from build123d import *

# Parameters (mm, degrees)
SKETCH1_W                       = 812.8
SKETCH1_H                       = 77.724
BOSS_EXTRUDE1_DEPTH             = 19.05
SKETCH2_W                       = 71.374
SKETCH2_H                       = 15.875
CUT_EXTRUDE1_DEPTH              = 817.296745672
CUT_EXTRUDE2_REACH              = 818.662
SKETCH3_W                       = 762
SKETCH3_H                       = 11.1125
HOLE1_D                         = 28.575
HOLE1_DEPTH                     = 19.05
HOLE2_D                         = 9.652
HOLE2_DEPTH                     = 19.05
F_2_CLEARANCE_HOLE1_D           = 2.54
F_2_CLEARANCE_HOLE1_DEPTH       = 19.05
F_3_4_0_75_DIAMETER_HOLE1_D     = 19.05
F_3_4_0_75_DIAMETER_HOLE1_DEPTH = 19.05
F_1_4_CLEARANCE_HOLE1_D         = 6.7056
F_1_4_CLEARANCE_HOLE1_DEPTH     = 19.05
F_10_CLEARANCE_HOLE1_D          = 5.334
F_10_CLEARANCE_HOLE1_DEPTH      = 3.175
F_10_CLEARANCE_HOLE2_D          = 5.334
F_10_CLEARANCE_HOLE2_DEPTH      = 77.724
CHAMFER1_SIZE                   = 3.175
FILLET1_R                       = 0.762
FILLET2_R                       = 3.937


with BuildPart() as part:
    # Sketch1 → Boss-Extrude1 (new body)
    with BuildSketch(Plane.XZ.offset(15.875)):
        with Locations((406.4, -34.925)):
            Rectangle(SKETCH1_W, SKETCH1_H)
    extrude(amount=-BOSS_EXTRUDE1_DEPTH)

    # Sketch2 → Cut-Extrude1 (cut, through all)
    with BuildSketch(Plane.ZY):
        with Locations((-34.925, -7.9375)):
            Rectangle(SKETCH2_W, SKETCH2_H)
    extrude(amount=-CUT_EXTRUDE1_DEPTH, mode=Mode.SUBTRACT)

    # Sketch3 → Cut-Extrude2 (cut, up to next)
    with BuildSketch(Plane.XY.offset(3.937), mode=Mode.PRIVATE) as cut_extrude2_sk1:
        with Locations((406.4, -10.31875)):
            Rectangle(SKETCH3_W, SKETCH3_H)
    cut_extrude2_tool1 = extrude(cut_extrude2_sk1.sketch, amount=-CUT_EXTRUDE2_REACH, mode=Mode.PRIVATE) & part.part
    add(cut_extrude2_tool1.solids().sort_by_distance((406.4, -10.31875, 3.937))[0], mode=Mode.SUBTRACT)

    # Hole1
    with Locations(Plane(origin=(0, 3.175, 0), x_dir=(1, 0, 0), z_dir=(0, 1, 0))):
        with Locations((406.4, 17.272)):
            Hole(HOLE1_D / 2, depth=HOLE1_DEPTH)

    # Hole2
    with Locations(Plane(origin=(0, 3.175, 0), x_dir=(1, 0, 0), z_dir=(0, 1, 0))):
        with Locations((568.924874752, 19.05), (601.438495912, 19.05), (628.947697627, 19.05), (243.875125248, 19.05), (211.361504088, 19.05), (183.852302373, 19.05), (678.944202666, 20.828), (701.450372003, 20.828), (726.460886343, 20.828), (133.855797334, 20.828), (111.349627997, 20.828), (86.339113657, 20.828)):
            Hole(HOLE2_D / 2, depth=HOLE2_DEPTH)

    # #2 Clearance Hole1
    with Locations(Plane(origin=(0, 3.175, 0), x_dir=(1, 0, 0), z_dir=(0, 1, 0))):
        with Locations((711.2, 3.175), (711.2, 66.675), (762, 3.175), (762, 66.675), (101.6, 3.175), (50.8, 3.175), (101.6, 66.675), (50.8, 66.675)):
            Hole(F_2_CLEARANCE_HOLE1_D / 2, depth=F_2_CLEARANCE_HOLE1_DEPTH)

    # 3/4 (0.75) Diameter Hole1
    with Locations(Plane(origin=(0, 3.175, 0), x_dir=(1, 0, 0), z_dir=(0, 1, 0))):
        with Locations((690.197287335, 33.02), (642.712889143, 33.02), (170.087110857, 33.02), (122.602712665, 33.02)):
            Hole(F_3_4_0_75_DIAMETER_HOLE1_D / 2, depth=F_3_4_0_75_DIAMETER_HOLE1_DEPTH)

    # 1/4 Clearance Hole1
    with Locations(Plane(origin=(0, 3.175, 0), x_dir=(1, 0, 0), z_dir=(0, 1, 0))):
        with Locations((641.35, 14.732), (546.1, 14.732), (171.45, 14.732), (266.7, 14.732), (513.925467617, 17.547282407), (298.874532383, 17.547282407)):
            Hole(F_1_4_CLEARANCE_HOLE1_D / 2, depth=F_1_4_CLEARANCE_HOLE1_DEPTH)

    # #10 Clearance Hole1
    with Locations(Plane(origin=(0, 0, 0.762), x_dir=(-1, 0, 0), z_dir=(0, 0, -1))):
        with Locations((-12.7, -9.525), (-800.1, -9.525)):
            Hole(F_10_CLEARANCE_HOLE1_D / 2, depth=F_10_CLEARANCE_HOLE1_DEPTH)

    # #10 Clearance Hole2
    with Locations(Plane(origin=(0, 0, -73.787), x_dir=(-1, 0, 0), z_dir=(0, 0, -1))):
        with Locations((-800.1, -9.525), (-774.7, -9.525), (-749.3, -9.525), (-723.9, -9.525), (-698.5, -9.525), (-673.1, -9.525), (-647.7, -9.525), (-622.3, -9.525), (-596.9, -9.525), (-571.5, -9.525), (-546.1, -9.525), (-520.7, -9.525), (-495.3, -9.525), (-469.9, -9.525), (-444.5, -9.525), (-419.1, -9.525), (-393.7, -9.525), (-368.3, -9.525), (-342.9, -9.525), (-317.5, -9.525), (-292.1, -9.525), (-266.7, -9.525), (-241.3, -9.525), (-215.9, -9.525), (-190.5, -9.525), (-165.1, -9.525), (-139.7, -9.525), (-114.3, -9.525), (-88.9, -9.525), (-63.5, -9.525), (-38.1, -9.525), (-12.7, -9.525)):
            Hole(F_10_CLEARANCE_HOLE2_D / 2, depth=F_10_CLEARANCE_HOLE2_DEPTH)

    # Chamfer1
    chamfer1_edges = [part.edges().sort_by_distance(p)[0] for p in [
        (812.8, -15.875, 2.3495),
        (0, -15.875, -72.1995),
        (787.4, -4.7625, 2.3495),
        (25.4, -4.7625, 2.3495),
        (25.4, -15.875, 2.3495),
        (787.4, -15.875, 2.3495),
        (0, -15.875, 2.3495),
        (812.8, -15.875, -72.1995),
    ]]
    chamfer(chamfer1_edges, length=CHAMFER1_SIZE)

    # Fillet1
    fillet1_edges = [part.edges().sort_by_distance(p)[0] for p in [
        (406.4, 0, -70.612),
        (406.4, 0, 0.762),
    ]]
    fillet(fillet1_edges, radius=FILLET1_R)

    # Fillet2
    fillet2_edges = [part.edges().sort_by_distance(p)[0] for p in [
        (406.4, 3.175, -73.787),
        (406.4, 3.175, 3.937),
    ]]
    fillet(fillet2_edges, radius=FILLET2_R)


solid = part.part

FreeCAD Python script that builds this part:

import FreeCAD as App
import Part
import Sketcher
Q = App.Units.Quantity


def edges_at(feature, points):
    """Names of the edges that pass closest to the given points."""
    edges = feature.Shape.Edges
    near = lambda p: min(range(len(edges)), key=lambda i: edges[i].distToShape(Part.Vertex(*p))[0])
    return sorted({f"Edge{near(p) + 1}" for p in points})


def add_polygon(sketch, points):
    """Adds a closed chain of lines whose ends are joined by coincident constraints."""
    first, n = sketch.GeometryCount, len(points)
    for a, b in zip(points, points[1:] + points[:1]):
        sketch.addGeometry(Part.LineSegment(App.Vector(*a, 0), App.Vector(*b, 0)), False)
    for i in range(n):
        sketch.addConstraint(Sketcher.Constraint("Coincident", first + i, 2, first + (i + 1) % n, 1))

doc = App.newDocument("Part")
body = doc.addObject("PartDesign::Body", "Body")

# Sketch on XZ plane
sketch1 = doc.addObject("Sketcher::SketchObject", "Sketch")
body.addObject(sketch1)
sketch1.AttachmentSupport = (doc.XZ_Plane, [""])
sketch1.MapMode = "FlatFace"
sketch1.AttachmentOffset = App.Placement(App.Vector(0, 0, 0.625 * 25.4), App.Rotation())
add_polygon(sketch1, [(0, 4), (0, -74), (813, -74), (813, 4)])  # lines 0-3
sketch1.addConstraint([
    Sketcher.Constraint("Vertical", 0),
    Sketcher.Constraint("Horizontal", 1),
    Sketcher.Constraint("Vertical", 2),
    Sketcher.Constraint("Horizontal", 3),
    Sketcher.Constraint("PointOnObject", 0, 2, -2),
    Sketcher.Constraint("DistanceX", 1, 1, 1, 2, Q("32 in")),
    Sketcher.Constraint("DistanceY", 0, 2, 0, 1, Q("3.06 in")),
    Sketcher.Constraint("DistanceY", 0, 2, -1, 1, Q("2.905 in")),
])
pad1 = doc.addObject("PartDesign::Pad", "Pad")
body.addObject(pad1)
pad1.Profile = sketch1
pad1.Length = Q("0.75 in")
pad1.Reversed = True

# Sketch on YZ plane
sketch2 = doc.addObject("Sketcher::SketchObject", "Sketch001")
body.addObject(sketch2)
sketch2.AttachmentSupport = (doc.YZ_Plane, [""])
sketch2.MapMode = "FlatFace"
add_polygon(sketch2, [(0, -71), (-16, -71), (-16, 1), (0, 1)])  # lines 0-3
sketch2.addConstraint([
    Sketcher.Constraint("Horizontal", 0),
    Sketcher.Constraint("Vertical", 1),
    Sketcher.Constraint("Horizontal", 2),
    Sketcher.Constraint("Vertical", 3),
    Sketcher.Constraint("PointOnObject", 2, 2, -2),
    Sketcher.Constraint("DistanceY", 1, 1, 1, 2, Q("2.81 in")),
    Sketcher.Constraint("DistanceX", 0, 2, 0, 1, Q("0.625 in")),
    Sketcher.Constraint("DistanceY", 0, 2, -1, 1, Q("2.78 in")),
])
pocket1 = doc.addObject("PartDesign::Pocket", "Pocket")
body.addObject(pocket1)
pocket1.Profile = sketch2
pocket1.Type = "ThroughAll"
pocket1.Reversed = True

# Sketch on XY plane
sketch3 = doc.addObject("Sketcher::SketchObject", "Sketch002")
body.addObject(sketch3)
sketch3.AttachmentSupport = (doc.XY_Plane, [""])
sketch3.MapMode = "FlatFace"
sketch3.AttachmentOffset = App.Placement(App.Vector(0, 0, 0.155 * 25.4), App.Rotation())
add_polygon(sketch3, [(25, -5), (25, -16), (787, -16), (787, -5)])  # lines 0-3
sketch3.addConstraint([
    Sketcher.Constraint("Vertical", 0),
    Sketcher.Constraint("Horizontal", 1),
    Sketcher.Constraint("Vertical", 2),
    Sketcher.Constraint("Horizontal", 3),
    Sketcher.Constraint("DistanceX", 1, 1, 1, 2, Q("30 in")),
    Sketcher.Constraint("DistanceX", -1, 1, 0, 2, Q("1 in")),
    Sketcher.Constraint("DistanceY", 0, 2, 0, 1, Q("0.4375 in")),
    Sketcher.Constraint("DistanceY", 0, 2, -1, 1, Q("0.625 in")),
])
pocket2 = doc.addObject("PartDesign::Pocket", "Pocket001")
body.addObject(pocket2)
pocket2.Profile = sketch3
pocket2.Type = "UpToFirst"

# Sketch on XZ plane
sketch4 = doc.addObject("Sketcher::SketchObject", "Sketch003")
body.addObject(sketch4)
sketch4.AttachmentSupport = (doc.XZ_Plane, [""])
sketch4.MapMode = "FlatFace"
sketch4.AttachmentOffset = App.Placement(App.Vector(0, 0, -0.125 * 25.4), App.Rotation())
sketch4.addGeometry(Part.Circle(App.Vector(406, -17, 0), App.Vector(0, 0, 1), 14), False)
sketch4.addConstraint([
    Sketcher.Constraint("Diameter", 0, Q("1.125 in")),
    Sketcher.Constraint("DistanceX", -1, 1, 0, 3, Q("16 in")),
    Sketcher.Constraint("DistanceY", 0, 3, -1, 1, Q("0.68 in")),
])
doc.recompute()
hole = doc.addObject("PartDesign::Hole", "Hole")
body.addObject(hole)
hole.Profile = sketch4
hole.ThreadType = "None"
hole.Diameter = Q("1.125 in")
hole.DepthType = "Dimension"
hole.Depth = Q("0.75 in")
hole.DrillPoint = "Flat"
hole.Reversed = True

# Sketch on XZ plane
sketch5 = doc.addObject("Sketcher::SketchObject", "Sketch004")
body.addObject(sketch5)
sketch5.AttachmentSupport = (doc.XZ_Plane, [""])
sketch5.MapMode = "FlatFace"
sketch5.AttachmentOffset = App.Placement(App.Vector(0, 0, -0.125 * 25.4), App.Rotation())
sketch5.addGeometry([
    Part.Circle(App.Vector(568.9, -19.1, 0), App.Vector(0, 0, 1), 4.8),  # 0
    Part.Circle(App.Vector(601.4, -19.1, 0), App.Vector(0, 0, 1), 4.8),  # 1
    Part.Circle(App.Vector(628.9, -19.1, 0), App.Vector(0, 0, 1), 4.8),  # 2
    Part.Circle(App.Vector(243.9, -19.1, 0), App.Vector(0, 0, 1), 4.8),  # 3
    Part.Circle(App.Vector(211.4, -19.1, 0), App.Vector(0, 0, 1), 4.8),  # 4
    Part.Circle(App.Vector(183.9, -19.1, 0), App.Vector(0, 0, 1), 4.8),  # 5
    Part.Circle(App.Vector(678.9, -20.8, 0), App.Vector(0, 0, 1), 4.8),  # 6
    Part.Circle(App.Vector(701.5, -20.8, 0), App.Vector(0, 0, 1), 4.8),  # 7
    Part.Circle(App.Vector(726.5, -20.8, 0), App.Vector(0, 0, 1), 4.8),  # 8
    Part.Circle(App.Vector(133.9, -20.8, 0), App.Vector(0, 0, 1), 4.8),  # 9
    Part.Circle(App.Vector(111.3, -20.8, 0), App.Vector(0, 0, 1), 4.8),  # 10
    Part.Circle(App.Vector(86.3, -20.8, 0), App.Vector(0, 0, 1), 4.8),  # 11
], False)
sketch5.addConstraint([
    Sketcher.Constraint("Equal", 0, 1),
    Sketcher.Constraint("Equal", 1, 2),
    Sketcher.Constraint("Equal", 2, 3),
    Sketcher.Constraint("Equal", 3, 4),
    Sketcher.Constraint("Equal", 4, 5),
    Sketcher.Constraint("Equal", 5, 6),
    Sketcher.Constraint("Equal", 6, 7),
    Sketcher.Constraint("Equal", 7, 8),
    Sketcher.Constraint("Equal", 8, 9),
    Sketcher.Constraint("Equal", 9, 10),
    Sketcher.Constraint("Equal", 10, 11),
    Sketcher.Constraint("Horizontal", 0, 3, 1, 3),
    Sketcher.Constraint("Horizontal", 1, 3, 2, 3),
    Sketcher.Constraint("Horizontal", 2, 3, 3, 3),
    Sketcher.Constraint("Horizontal", 3, 3, 4, 3),
    Sketcher.Constraint("Horizontal", 4, 3, 5, 3),
    Sketcher.Constraint("Horizontal", 6, 3, 7, 3),
    Sketcher.Constraint("Horizontal", 7, 3, 8, 3),
    Sketcher.Constraint("Horizontal", 8, 3, 9, 3),
    Sketcher.Constraint("Horizontal", 9, 3, 10, 3),
    Sketcher.Constraint("Horizontal", 10, 3, 11, 3),
    Sketcher.Constraint("Diameter", 0, Q("0.38 in")),
    Sketcher.Constraint("DistanceY", 0, 3, -1, 1, Q("0.75 in")),
    Sketcher.Constraint("DistanceY", 6, 3, -1, 1, Q("0.82 in")),
    Sketcher.Constraint("DistanceX", 1, 3, 2, 3, Q("27.509202 mm")),
    Sketcher.Constraint("DistanceX", 5, 3, 4, 3, Q("27.509202 mm")),
    Sketcher.Constraint("DistanceX", 4, 3, 6, 3, Q("467.582699 mm")),
    Sketcher.Constraint("DistanceX", 9, 3, 1, 3, Q("467.582699 mm")),
    Sketcher.Constraint("DistanceX", 0, 3, 1, 3, Q("32.513621 mm")),
    Sketcher.Constraint("DistanceX", 3, 3, 0, 3, Q("325.04975 mm")),
    Sketcher.Constraint("DistanceX", 4, 3, 3, 3, Q("32.513621 mm")),
    Sketcher.Constraint("DistanceX", 6, 3, 7, 3, Q("22.506169 mm")),
    Sketcher.Constraint("DistanceX", 2, 3, 8, 3, Q("97.513189 mm")),
    Sketcher.Constraint("DistanceX", 10, 3, 9, 3, Q("22.506169 mm")),
    Sketcher.Constraint("DistanceX", 11, 3, 5, 3, Q("97.513189 mm")),
    Sketcher.Constraint("DistanceX", -1, 1, 0, 3, Q("568.924875 mm")),
])
doc.recompute()
hole2 = doc.addObject("PartDesign::Hole", "Hole001")
body.addObject(hole2)
hole2.Profile = sketch5
hole2.ThreadType = "None"
hole2.Diameter = Q("0.38 in")
hole2.DepthType = "Dimension"
hole2.Depth = Q("0.75 in")
hole2.DrillPoint = "Flat"
hole2.Reversed = True

# Sketch on XZ plane
sketch6 = doc.addObject("Sketcher::SketchObject", "Sketch005")
body.addObject(sketch6)
sketch6.AttachmentSupport = (doc.XZ_Plane, [""])
sketch6.MapMode = "FlatFace"
sketch6.AttachmentOffset = App.Placement(App.Vector(0, 0, -0.125 * 25.4), App.Rotation())
sketch6.addGeometry([
    Part.Circle(App.Vector(711.2, -3.2, 0), App.Vector(0, 0, 1), 1.3),  # 0
    Part.Circle(App.Vector(711.2, -66.7, 0), App.Vector(0, 0, 1), 1.3),  # 1
    Part.Circle(App.Vector(762, -3.2, 0), App.Vector(0, 0, 1), 1.3),  # 2
    Part.Circle(App.Vector(762, -66.7, 0), App.Vector(0, 0, 1), 1.3),  # 3
    Part.Circle(App.Vector(101.6, -3.2, 0), App.Vector(0, 0, 1), 1.3),  # 4
    Part.Circle(App.Vector(50.8, -3.2, 0), App.Vector(0, 0, 1), 1.3),  # 5
    Part.Circle(App.Vector(101.6, -66.7, 0), App.Vector(0, 0, 1), 1.3),  # 6
    Part.Circle(App.Vector(50.8, -66.7, 0), App.Vector(0, 0, 1), 1.3),  # 7
], False)
sketch6.addConstraint([
    Sketcher.Constraint("Equal", 0, 1),
    Sketcher.Constraint("Equal", 1, 2),
    Sketcher.Constraint("Equal", 2, 3),
    Sketcher.Constraint("Equal", 3, 4),
    Sketcher.Constraint("Equal", 4, 5),
    Sketcher.Constraint("Equal", 5, 6),
    Sketcher.Constraint("Equal", 6, 7),
    Sketcher.Constraint("Horizontal", 0, 3, 2, 3),
    Sketcher.Constraint("Horizontal", 1, 3, 3, 3),
    Sketcher.Constraint("Horizontal", 2, 3, 4, 3),
    Sketcher.Constraint("Horizontal", 4, 3, 5, 3),
    Sketcher.Constraint("Horizontal", 3, 3, 6, 3),
    Sketcher.Constraint("Horizontal", 6, 3, 7, 3),
    Sketcher.Constraint("Vertical", 0, 3, 1, 3),
    Sketcher.Constraint("Vertical", 2, 3, 3, 3),
    Sketcher.Constraint("Vertical", 4, 3, 6, 3),
    Sketcher.Constraint("Vertical", 5, 3, 7, 3),
    Sketcher.Constraint("Diameter", 0, Q("0.1 in")),
    Sketcher.Constraint("DistanceX", -1, 1, 0, 3, Q("28 in")),
    Sketcher.Constraint("DistanceX", -1, 1, 2, 3, Q("30 in")),
    Sketcher.Constraint("DistanceX", -1, 1, 4, 3, Q("4 in")),
    Sketcher.Constraint("DistanceX", -1, 1, 5, 3, Q("2 in")),
    Sketcher.Constraint("DistanceY", 1, 3, 0, 3, Q("2.5 in")),
    Sketcher.Constraint("DistanceY", 0, 3, -1, 1, Q("0.125 in")),
])
doc.recompute()
hole3 = doc.addObject("PartDesign::Hole", "Hole002")
body.addObject(hole3)
hole3.Profile = sketch6
hole3.ThreadType = "None"
hole3.Diameter = Q("0.1 in")
hole3.DepthType = "Dimension"
hole3.Depth = Q("0.75 in")
hole3.DrillPoint = "Flat"
hole3.Reversed = True

# Sketch on XZ plane
sketch7 = doc.addObject("Sketcher::SketchObject", "Sketch006")
body.addObject(sketch7)
sketch7.AttachmentSupport = (doc.XZ_Plane, [""])
sketch7.MapMode = "FlatFace"
sketch7.AttachmentOffset = App.Placement(App.Vector(0, 0, -0.125 * 25.4), App.Rotation())
sketch7.addGeometry([
    Part.Circle(App.Vector(690, -33, 0), App.Vector(0, 0, 1), 10),
    Part.Circle(App.Vector(643, -33, 0), App.Vector(0, 0, 1), 10),
    Part.Circle(App.Vector(170, -33, 0), App.Vector(0, 0, 1), 10),
    Part.Circle(App.Vector(123, -33, 0), App.Vector(0, 0, 1), 10),
], False)
sketch7.addConstraint([
    Sketcher.Constraint("Equal", 0, 1),
    Sketcher.Constraint("Equal", 1, 2),
    Sketcher.Constraint("Equal", 2, 3),
    Sketcher.Constraint("Horizontal", 0, 3, 1, 3),
    Sketcher.Constraint("Horizontal", 1, 3, 2, 3),
    Sketcher.Constraint("Horizontal", 2, 3, 3, 3),
    Sketcher.Constraint("Diameter", 0, Q("0.75 in")),
    Sketcher.Constraint("DistanceY", 0, 3, -1, 1, Q("1.3 in")),
    Sketcher.Constraint("DistanceX", 1, 3, 0, 3, Q("47.484398 mm")),
    Sketcher.Constraint("DistanceX", 3, 3, 2, 3, Q("47.484398 mm")),
    Sketcher.Constraint("DistanceX", -1, 1, 1, 3, Q("642.712889 mm")),
    Sketcher.Constraint("DistanceX", -1, 1, 2, 3, Q("170.087111 mm")),
])
doc.recompute()
hole4 = doc.addObject("PartDesign::Hole", "Hole003")
body.addObject(hole4)
hole4.Profile = sketch7
hole4.ThreadType = "None"
hole4.Diameter = Q("0.75 in")
hole4.DepthType = "Dimension"
hole4.Depth = Q("0.75 in")
hole4.DrillPoint = "Flat"
hole4.Reversed = True

# Sketch on XZ plane
sketch8 = doc.addObject("Sketcher::SketchObject", "Sketch007")
body.addObject(sketch8)
sketch8.AttachmentSupport = (doc.XZ_Plane, [""])
sketch8.MapMode = "FlatFace"
sketch8.AttachmentOffset = App.Placement(App.Vector(0, 0, -0.125 * 25.4), App.Rotation())
sketch8.addGeometry([
    Part.Circle(App.Vector(641.4, -14.7, 0), App.Vector(0, 0, 1), 3.4),  # 0
    Part.Circle(App.Vector(546.1, -14.7, 0), App.Vector(0, 0, 1), 3.4),  # 1
    Part.Circle(App.Vector(171.4, -14.7, 0), App.Vector(0, 0, 1), 3.4),  # 2
    Part.Circle(App.Vector(266.7, -14.7, 0), App.Vector(0, 0, 1), 3.4),  # 3
    Part.Circle(App.Vector(513.9, -17.5, 0), App.Vector(0, 0, 1), 3.4),  # 4
    Part.Circle(App.Vector(298.9, -17.5, 0), App.Vector(0, 0, 1), 3.4),  # 5
], False)
sketch8.addConstraint([
    Sketcher.Constraint("Equal", 0, 1),
    Sketcher.Constraint("Equal", 1, 2),
    Sketcher.Constraint("Equal", 2, 3),
    Sketcher.Constraint("Equal", 3, 4),
    Sketcher.Constraint("Equal", 4, 5),
    Sketcher.Constraint("Horizontal", 0, 3, 1, 3),
    Sketcher.Constraint("Horizontal", 1, 3, 2, 3),
    Sketcher.Constraint("Horizontal", 2, 3, 3, 3),
    Sketcher.Constraint("Horizontal", 4, 3, 5, 3),
    Sketcher.Constraint("Diameter", 0, Q("0.264 in")),
    Sketcher.Constraint("DistanceX", 3, 3, 1, 3, Q("11 in")),
    Sketcher.Constraint("DistanceX", -1, 1, 1, 3, Q("21.5 in")),
    Sketcher.Constraint("DistanceX", 2, 3, 0, 3, Q("18.5 in")),
    Sketcher.Constraint("DistanceX", -1, 1, 0, 3, Q("25.25 in")),
    Sketcher.Constraint("DistanceY", 0, 3, -1, 1, Q("0.58 in")),
    Sketcher.Constraint("DistanceX", -1, 1, 4, 3, Q("513.925468 mm")),
    Sketcher.Constraint("DistanceY", 4, 3, -1, 1, Q("17.547282 mm")),
    Sketcher.Constraint("DistanceX", -1, 1, 5, 3, Q("298.874532 mm")),
])
doc.recompute()
hole5 = doc.addObject("PartDesign::Hole", "Hole004")
body.addObject(hole5)
hole5.Profile = sketch8
hole5.ThreadType = "None"
hole5.Diameter = Q("0.264 in")
hole5.DepthType = "Dimension"
hole5.Depth = Q("0.75 in")
hole5.DrillPoint = "Flat"
hole5.Reversed = True

# Sketch on XY plane
sketch9 = doc.addObject("Sketcher::SketchObject", "Sketch008")
body.addObject(sketch9)
sketch9.AttachmentSupport = (doc.XY_Plane, [""])
sketch9.MapMode = "FlatFace"
sketch9.AttachmentOffset = App.Placement(App.Vector(0, 0, 0.03 * 25.4), App.Rotation())
sketch9.addGeometry([
    Part.Circle(App.Vector(12.7, -9.5, 0), App.Vector(0, 0, 1), 2.7),
    Part.Circle(App.Vector(800.1, -9.5, 0), App.Vector(0, 0, 1), 2.7),
], False)
sketch9.addConstraint([
    Sketcher.Constraint("Equal", 0, 1),
    Sketcher.Constraint("Horizontal", 0, 3, 1, 3),
    Sketcher.Constraint("Diameter", 0, Q("0.21 in")),
    Sketcher.Constraint("DistanceX", 0, 3, 1, 3, Q("31 in")),
    Sketcher.Constraint("DistanceX", -1, 1, 0, 3, Q("0.5 in")),
    Sketcher.Constraint("DistanceY", 0, 3, -1, 1, Q("0.375 in")),
])
doc.recompute()
hole6 = doc.addObject("PartDesign::Hole", "Hole005")
body.addObject(hole6)
hole6.Profile = sketch9
hole6.ThreadType = "None"
hole6.Diameter = Q("0.21 in")
hole6.DepthType = "Dimension"
hole6.Depth = Q("0.125 in")
hole6.DrillPoint = "Flat"
hole6.Reversed = True

# Sketch on XY plane
sketch10 = doc.addObject("Sketcher::SketchObject", "Sketch009")
body.addObject(sketch10)
sketch10.AttachmentSupport = (doc.XY_Plane, [""])
sketch10.MapMode = "FlatFace"
sketch10.AttachmentOffset = App.Placement(App.Vector(0, 0, -2.905 * 25.4), App.Rotation())
sketch10.addGeometry([
    Part.Circle(App.Vector(800.1, -9.5, 0), App.Vector(0, 0, 1), 2.7),  # 0
    Part.Circle(App.Vector(774.7, -9.5, 0), App.Vector(0, 0, 1), 2.7),  # 1
    Part.Circle(App.Vector(749.3, -9.5, 0), App.Vector(0, 0, 1), 2.7),  # 2
    Part.Circle(App.Vector(723.9, -9.5, 0), App.Vector(0, 0, 1), 2.7),  # 3
    Part.Circle(App.Vector(698.5, -9.5, 0), App.Vector(0, 0, 1), 2.7),  # 4
    Part.Circle(App.Vector(673.1, -9.5, 0), App.Vector(0, 0, 1), 2.7),  # 5
    Part.Circle(App.Vector(647.7, -9.5, 0), App.Vector(0, 0, 1), 2.7),  # 6
    Part.Circle(App.Vector(622.3, -9.5, 0), App.Vector(0, 0, 1), 2.7),  # 7
    Part.Circle(App.Vector(596.9, -9.5, 0), App.Vector(0, 0, 1), 2.7),  # 8
    Part.Circle(App.Vector(571.5, -9.5, 0), App.Vector(0, 0, 1), 2.7),  # 9
    Part.Circle(App.Vector(546.1, -9.5, 0), App.Vector(0, 0, 1), 2.7),  # 10
    Part.Circle(App.Vector(520.7, -9.5, 0), App.Vector(0, 0, 1), 2.7),  # 11
    Part.Circle(App.Vector(495.3, -9.5, 0), App.Vector(0, 0, 1), 2.7),  # 12
    Part.Circle(App.Vector(469.9, -9.5, 0), App.Vector(0, 0, 1), 2.7),  # 13
    Part.Circle(App.Vector(444.5, -9.5, 0), App.Vector(0, 0, 1), 2.7),  # 14
    Part.Circle(App.Vector(419.1, -9.5, 0), App.Vector(0, 0, 1), 2.7),  # 15
    Part.Circle(App.Vector(393.7, -9.5, 0), App.Vector(0, 0, 1), 2.7),  # 16
    Part.Circle(App.Vector(368.3, -9.5, 0), App.Vector(0, 0, 1), 2.7),  # 17
    Part.Circle(App.Vector(342.9, -9.5, 0), App.Vector(0, 0, 1), 2.7),  # 18
    Part.Circle(App.Vector(317.5, -9.5, 0), App.Vector(0, 0, 1), 2.7),  # 19
    Part.Circle(App.Vector(292.1, -9.5, 0), App.Vector(0, 0, 1), 2.7),  # 20
    Part.Circle(App.Vector(266.7, -9.5, 0), App.Vector(0, 0, 1), 2.7),  # 21
    Part.Circle(App.Vector(241.3, -9.5, 0), App.Vector(0, 0, 1), 2.7),  # 22
    Part.Circle(App.Vector(215.9, -9.5, 0), App.Vector(0, 0, 1), 2.7),  # 23
    Part.Circle(App.Vector(190.5, -9.5, 0), App.Vector(0, 0, 1), 2.7),  # 24
    Part.Circle(App.Vector(165.1, -9.5, 0), App.Vector(0, 0, 1), 2.7),  # 25
    Part.Circle(App.Vector(139.7, -9.5, 0), App.Vector(0, 0, 1), 2.7),  # 26
    Part.Circle(App.Vector(114.3, -9.5, 0), App.Vector(0, 0, 1), 2.7),  # 27
    Part.Circle(App.Vector(88.9, -9.5, 0), App.Vector(0, 0, 1), 2.7),  # 28
    Part.Circle(App.Vector(63.5, -9.5, 0), App.Vector(0, 0, 1), 2.7),  # 29
    Part.Circle(App.Vector(38.1, -9.5, 0), App.Vector(0, 0, 1), 2.7),  # 30
    Part.Circle(App.Vector(12.7, -9.5, 0), App.Vector(0, 0, 1), 2.7),  # 31
], False)
sketch10.addConstraint([
    Sketcher.Constraint("Equal", 0, 1),
    Sketcher.Constraint("Equal", 1, 2),
    Sketcher.Constraint("Equal", 2, 3),
    Sketcher.Constraint("Equal", 3, 4),
    Sketcher.Constraint("Equal", 4, 5),
    Sketcher.Constraint("Equal", 5, 6),
    Sketcher.Constraint("Equal", 6, 7),
    Sketcher.Constraint("Equal", 7, 8),
    Sketcher.Constraint("Equal", 8, 9),
    Sketcher.Constraint("Equal", 9, 10),
    Sketcher.Constraint("Equal", 10, 11),
    Sketcher.Constraint("Equal", 11, 12),
    Sketcher.Constraint("Equal", 12, 13),
    Sketcher.Constraint("Equal", 13, 14),
    Sketcher.Constraint("Equal", 14, 15),
    Sketcher.Constraint("Equal", 15, 16),
    Sketcher.Constraint("Equal", 16, 17),
    Sketcher.Constraint("Equal", 17, 18),
    Sketcher.Constraint("Equal", 18, 19),
    Sketcher.Constraint("Equal", 19, 20),
    Sketcher.Constraint("Equal", 20, 21),
    Sketcher.Constraint("Equal", 21, 22),
    Sketcher.Constraint("Equal", 22, 23),
    Sketcher.Constraint("Equal", 23, 24),
    Sketcher.Constraint("Equal", 24, 25),
    Sketcher.Constraint("Equal", 25, 26),
    Sketcher.Constraint("Equal", 26, 27),
    Sketcher.Constraint("Equal", 27, 28),
    Sketcher.Constraint("Equal", 28, 29),
    Sketcher.Constraint("Equal", 29, 30),
    Sketcher.Constraint("Equal", 30, 31),
    Sketcher.Constraint("Horizontal", 0, 3, 1, 3),
    Sketcher.Constraint("Horizontal", 1, 3, 2, 3),
    Sketcher.Constraint("Horizontal", 2, 3, 3, 3),
    Sketcher.Constraint("Horizontal", 3, 3, 4, 3),
    Sketcher.Constraint("Horizontal", 4, 3, 5, 3),
    Sketcher.Constraint("Horizontal", 5, 3, 6, 3),
    Sketcher.Constraint("Horizontal", 6, 3, 7, 3),
    Sketcher.Constraint("Horizontal", 7, 3, 8, 3),
    Sketcher.Constraint("Horizontal", 8, 3, 9, 3),
    Sketcher.Constraint("Horizontal", 9, 3, 10, 3),
    Sketcher.Constraint("Horizontal", 10, 3, 11, 3),
    Sketcher.Constraint("Horizontal", 11, 3, 12, 3),
    Sketcher.Constraint("Horizontal", 12, 3, 13, 3),
    Sketcher.Constraint("Horizontal", 13, 3, 14, 3),
    Sketcher.Constraint("Horizontal", 14, 3, 15, 3),
    Sketcher.Constraint("Horizontal", 15, 3, 16, 3),
    Sketcher.Constraint("Horizontal", 16, 3, 17, 3),
    Sketcher.Constraint("Horizontal", 17, 3, 18, 3),
    Sketcher.Constraint("Horizontal", 18, 3, 19, 3),
    Sketcher.Constraint("Horizontal", 19, 3, 20, 3),
    Sketcher.Constraint("Horizontal", 20, 3, 21, 3),
    Sketcher.Constraint("Horizontal", 21, 3, 22, 3),
    Sketcher.Constraint("Horizontal", 22, 3, 23, 3),
    Sketcher.Constraint("Horizontal", 23, 3, 24, 3),
    Sketcher.Constraint("Horizontal", 24, 3, 25, 3),
    Sketcher.Constraint("Horizontal", 25, 3, 26, 3),
    Sketcher.Constraint("Horizontal", 26, 3, 27, 3),
    Sketcher.Constraint("Horizontal", 27, 3, 28, 3),
    Sketcher.Constraint("Horizontal", 28, 3, 29, 3),
    Sketcher.Constraint("Horizontal", 29, 3, 30, 3),
    Sketcher.Constraint("Horizontal", 30, 3, 31, 3),
    Sketcher.Constraint("Diameter", 0, Q("0.21 in")),
    Sketcher.Constraint("DistanceX", 1, 3, 0, 3, Q("1 in")),
    Sketcher.Constraint("DistanceX", 2, 3, 1, 3, Q("1 in")),
    Sketcher.Constraint("DistanceX", 3, 3, 2, 3, Q("1 in")),
    Sketcher.Constraint("DistanceX", 4, 3, 3, 3, Q("1 in")),
    Sketcher.Constraint("DistanceX", 5, 3, 4, 3, Q("1 in")),
    Sketcher.Constraint("DistanceX", 6, 3, 5, 3, Q("1 in")),
    Sketcher.Constraint("DistanceX", 7, 3, 6, 3, Q("1 in")),
    Sketcher.Constraint("DistanceX", 8, 3, 7, 3, Q("1 in")),
    Sketcher.Constraint("DistanceX", 9, 3, 8, 3, Q("1 in")),
    Sketcher.Constraint("DistanceX", 10, 3, 9, 3, Q("1 in")),
    Sketcher.Constraint("DistanceX", 11, 3, 10, 3, Q("1 in")),
    Sketcher.Constraint("DistanceX", 12, 3, 11, 3, Q("1 in")),
    Sketcher.Constraint("DistanceX", 13, 3, 12, 3, Q("1 in")),
    Sketcher.Constraint("DistanceX", 14, 3, 13, 3, Q("1 in")),
    Sketcher.Constraint("DistanceX", 15, 3, 14, 3, Q("1 in")),
    Sketcher.Constraint("DistanceX", 16, 3, 15, 3, Q("1 in")),
    Sketcher.Constraint("DistanceX", 17, 3, 16, 3, Q("1 in")),
    Sketcher.Constraint("DistanceX", 18, 3, 17, 3, Q("1 in")),
    Sketcher.Constraint("DistanceX", 19, 3, 18, 3, Q("1 in")),
    Sketcher.Constraint("DistanceX", 20, 3, 19, 3, Q("1 in")),
    Sketcher.Constraint("DistanceX", 21, 3, 20, 3, Q("1 in")),
    Sketcher.Constraint("DistanceX", 22, 3, 21, 3, Q("1 in")),
    Sketcher.Constraint("DistanceX", 23, 3, 22, 3, Q("1 in")),
    Sketcher.Constraint("DistanceX", 24, 3, 23, 3, Q("1 in")),
    Sketcher.Constraint("DistanceX", 25, 3, 24, 3, Q("1 in")),
    Sketcher.Constraint("DistanceX", 26, 3, 25, 3, Q("1 in")),
    Sketcher.Constraint("DistanceX", 27, 3, 26, 3, Q("1 in")),
    Sketcher.Constraint("DistanceX", 28, 3, 27, 3, Q("1 in")),
    Sketcher.Constraint("DistanceX", 29, 3, 28, 3, Q("1 in")),
    Sketcher.Constraint("DistanceX", 30, 3, 29, 3, Q("1 in")),
    Sketcher.Constraint("DistanceX", 31, 3, 30, 3, Q("1 in")),
    Sketcher.Constraint("DistanceX", -1, 1, 0, 3, Q("31.5 in")),
    Sketcher.Constraint("DistanceY", 0, 3, -1, 1, Q("0.375 in")),
])
doc.recompute()
hole7 = doc.addObject("PartDesign::Hole", "Hole006")
body.addObject(hole7)
hole7.Profile = sketch10
hole7.ThreadType = "None"
hole7.Diameter = Q("0.21 in")
hole7.DepthType = "Dimension"
hole7.Depth = Q("3.06 in")
hole7.DrillPoint = "Flat"
hole7.Reversed = True
doc.recompute()

chamfer = doc.addObject("PartDesign::Chamfer", "Chamfer")
body.addObject(chamfer)
chamfer.Base = (hole7, edges_at(hole7, [
    (812.8, -15.875, 2.349),
    (0, -15.875, -72.2),
    (787.4, -4.763, 2.349),
    (25.4, -4.763, 2.349),
    (25.4, -15.875, 2.349),
    (787.4, -15.875, 2.349),
    (0, -15.875, 2.349),
    (812.8, -15.875, -72.2),
]))
chamfer.Size = Q("0.125 in")
doc.recompute()

fillet = doc.addObject("PartDesign::Fillet", "Fillet")
body.addObject(fillet)
fillet.Base = (chamfer, edges_at(chamfer, [(406.4, 0, -70.612), (406.4, 0, 0.762)]))
fillet.Radius = Q("0.03 in")
doc.recompute()

fillet2 = doc.addObject("PartDesign::Fillet", "Fillet001")
body.addObject(fillet2)
fillet2.Base = (fillet, edges_at(fillet, [(406.4, 3.175, -73.787), (406.4, 3.175, 3.937)]))
fillet2.Radius = Q("0.155 in")

doc.recompute()
